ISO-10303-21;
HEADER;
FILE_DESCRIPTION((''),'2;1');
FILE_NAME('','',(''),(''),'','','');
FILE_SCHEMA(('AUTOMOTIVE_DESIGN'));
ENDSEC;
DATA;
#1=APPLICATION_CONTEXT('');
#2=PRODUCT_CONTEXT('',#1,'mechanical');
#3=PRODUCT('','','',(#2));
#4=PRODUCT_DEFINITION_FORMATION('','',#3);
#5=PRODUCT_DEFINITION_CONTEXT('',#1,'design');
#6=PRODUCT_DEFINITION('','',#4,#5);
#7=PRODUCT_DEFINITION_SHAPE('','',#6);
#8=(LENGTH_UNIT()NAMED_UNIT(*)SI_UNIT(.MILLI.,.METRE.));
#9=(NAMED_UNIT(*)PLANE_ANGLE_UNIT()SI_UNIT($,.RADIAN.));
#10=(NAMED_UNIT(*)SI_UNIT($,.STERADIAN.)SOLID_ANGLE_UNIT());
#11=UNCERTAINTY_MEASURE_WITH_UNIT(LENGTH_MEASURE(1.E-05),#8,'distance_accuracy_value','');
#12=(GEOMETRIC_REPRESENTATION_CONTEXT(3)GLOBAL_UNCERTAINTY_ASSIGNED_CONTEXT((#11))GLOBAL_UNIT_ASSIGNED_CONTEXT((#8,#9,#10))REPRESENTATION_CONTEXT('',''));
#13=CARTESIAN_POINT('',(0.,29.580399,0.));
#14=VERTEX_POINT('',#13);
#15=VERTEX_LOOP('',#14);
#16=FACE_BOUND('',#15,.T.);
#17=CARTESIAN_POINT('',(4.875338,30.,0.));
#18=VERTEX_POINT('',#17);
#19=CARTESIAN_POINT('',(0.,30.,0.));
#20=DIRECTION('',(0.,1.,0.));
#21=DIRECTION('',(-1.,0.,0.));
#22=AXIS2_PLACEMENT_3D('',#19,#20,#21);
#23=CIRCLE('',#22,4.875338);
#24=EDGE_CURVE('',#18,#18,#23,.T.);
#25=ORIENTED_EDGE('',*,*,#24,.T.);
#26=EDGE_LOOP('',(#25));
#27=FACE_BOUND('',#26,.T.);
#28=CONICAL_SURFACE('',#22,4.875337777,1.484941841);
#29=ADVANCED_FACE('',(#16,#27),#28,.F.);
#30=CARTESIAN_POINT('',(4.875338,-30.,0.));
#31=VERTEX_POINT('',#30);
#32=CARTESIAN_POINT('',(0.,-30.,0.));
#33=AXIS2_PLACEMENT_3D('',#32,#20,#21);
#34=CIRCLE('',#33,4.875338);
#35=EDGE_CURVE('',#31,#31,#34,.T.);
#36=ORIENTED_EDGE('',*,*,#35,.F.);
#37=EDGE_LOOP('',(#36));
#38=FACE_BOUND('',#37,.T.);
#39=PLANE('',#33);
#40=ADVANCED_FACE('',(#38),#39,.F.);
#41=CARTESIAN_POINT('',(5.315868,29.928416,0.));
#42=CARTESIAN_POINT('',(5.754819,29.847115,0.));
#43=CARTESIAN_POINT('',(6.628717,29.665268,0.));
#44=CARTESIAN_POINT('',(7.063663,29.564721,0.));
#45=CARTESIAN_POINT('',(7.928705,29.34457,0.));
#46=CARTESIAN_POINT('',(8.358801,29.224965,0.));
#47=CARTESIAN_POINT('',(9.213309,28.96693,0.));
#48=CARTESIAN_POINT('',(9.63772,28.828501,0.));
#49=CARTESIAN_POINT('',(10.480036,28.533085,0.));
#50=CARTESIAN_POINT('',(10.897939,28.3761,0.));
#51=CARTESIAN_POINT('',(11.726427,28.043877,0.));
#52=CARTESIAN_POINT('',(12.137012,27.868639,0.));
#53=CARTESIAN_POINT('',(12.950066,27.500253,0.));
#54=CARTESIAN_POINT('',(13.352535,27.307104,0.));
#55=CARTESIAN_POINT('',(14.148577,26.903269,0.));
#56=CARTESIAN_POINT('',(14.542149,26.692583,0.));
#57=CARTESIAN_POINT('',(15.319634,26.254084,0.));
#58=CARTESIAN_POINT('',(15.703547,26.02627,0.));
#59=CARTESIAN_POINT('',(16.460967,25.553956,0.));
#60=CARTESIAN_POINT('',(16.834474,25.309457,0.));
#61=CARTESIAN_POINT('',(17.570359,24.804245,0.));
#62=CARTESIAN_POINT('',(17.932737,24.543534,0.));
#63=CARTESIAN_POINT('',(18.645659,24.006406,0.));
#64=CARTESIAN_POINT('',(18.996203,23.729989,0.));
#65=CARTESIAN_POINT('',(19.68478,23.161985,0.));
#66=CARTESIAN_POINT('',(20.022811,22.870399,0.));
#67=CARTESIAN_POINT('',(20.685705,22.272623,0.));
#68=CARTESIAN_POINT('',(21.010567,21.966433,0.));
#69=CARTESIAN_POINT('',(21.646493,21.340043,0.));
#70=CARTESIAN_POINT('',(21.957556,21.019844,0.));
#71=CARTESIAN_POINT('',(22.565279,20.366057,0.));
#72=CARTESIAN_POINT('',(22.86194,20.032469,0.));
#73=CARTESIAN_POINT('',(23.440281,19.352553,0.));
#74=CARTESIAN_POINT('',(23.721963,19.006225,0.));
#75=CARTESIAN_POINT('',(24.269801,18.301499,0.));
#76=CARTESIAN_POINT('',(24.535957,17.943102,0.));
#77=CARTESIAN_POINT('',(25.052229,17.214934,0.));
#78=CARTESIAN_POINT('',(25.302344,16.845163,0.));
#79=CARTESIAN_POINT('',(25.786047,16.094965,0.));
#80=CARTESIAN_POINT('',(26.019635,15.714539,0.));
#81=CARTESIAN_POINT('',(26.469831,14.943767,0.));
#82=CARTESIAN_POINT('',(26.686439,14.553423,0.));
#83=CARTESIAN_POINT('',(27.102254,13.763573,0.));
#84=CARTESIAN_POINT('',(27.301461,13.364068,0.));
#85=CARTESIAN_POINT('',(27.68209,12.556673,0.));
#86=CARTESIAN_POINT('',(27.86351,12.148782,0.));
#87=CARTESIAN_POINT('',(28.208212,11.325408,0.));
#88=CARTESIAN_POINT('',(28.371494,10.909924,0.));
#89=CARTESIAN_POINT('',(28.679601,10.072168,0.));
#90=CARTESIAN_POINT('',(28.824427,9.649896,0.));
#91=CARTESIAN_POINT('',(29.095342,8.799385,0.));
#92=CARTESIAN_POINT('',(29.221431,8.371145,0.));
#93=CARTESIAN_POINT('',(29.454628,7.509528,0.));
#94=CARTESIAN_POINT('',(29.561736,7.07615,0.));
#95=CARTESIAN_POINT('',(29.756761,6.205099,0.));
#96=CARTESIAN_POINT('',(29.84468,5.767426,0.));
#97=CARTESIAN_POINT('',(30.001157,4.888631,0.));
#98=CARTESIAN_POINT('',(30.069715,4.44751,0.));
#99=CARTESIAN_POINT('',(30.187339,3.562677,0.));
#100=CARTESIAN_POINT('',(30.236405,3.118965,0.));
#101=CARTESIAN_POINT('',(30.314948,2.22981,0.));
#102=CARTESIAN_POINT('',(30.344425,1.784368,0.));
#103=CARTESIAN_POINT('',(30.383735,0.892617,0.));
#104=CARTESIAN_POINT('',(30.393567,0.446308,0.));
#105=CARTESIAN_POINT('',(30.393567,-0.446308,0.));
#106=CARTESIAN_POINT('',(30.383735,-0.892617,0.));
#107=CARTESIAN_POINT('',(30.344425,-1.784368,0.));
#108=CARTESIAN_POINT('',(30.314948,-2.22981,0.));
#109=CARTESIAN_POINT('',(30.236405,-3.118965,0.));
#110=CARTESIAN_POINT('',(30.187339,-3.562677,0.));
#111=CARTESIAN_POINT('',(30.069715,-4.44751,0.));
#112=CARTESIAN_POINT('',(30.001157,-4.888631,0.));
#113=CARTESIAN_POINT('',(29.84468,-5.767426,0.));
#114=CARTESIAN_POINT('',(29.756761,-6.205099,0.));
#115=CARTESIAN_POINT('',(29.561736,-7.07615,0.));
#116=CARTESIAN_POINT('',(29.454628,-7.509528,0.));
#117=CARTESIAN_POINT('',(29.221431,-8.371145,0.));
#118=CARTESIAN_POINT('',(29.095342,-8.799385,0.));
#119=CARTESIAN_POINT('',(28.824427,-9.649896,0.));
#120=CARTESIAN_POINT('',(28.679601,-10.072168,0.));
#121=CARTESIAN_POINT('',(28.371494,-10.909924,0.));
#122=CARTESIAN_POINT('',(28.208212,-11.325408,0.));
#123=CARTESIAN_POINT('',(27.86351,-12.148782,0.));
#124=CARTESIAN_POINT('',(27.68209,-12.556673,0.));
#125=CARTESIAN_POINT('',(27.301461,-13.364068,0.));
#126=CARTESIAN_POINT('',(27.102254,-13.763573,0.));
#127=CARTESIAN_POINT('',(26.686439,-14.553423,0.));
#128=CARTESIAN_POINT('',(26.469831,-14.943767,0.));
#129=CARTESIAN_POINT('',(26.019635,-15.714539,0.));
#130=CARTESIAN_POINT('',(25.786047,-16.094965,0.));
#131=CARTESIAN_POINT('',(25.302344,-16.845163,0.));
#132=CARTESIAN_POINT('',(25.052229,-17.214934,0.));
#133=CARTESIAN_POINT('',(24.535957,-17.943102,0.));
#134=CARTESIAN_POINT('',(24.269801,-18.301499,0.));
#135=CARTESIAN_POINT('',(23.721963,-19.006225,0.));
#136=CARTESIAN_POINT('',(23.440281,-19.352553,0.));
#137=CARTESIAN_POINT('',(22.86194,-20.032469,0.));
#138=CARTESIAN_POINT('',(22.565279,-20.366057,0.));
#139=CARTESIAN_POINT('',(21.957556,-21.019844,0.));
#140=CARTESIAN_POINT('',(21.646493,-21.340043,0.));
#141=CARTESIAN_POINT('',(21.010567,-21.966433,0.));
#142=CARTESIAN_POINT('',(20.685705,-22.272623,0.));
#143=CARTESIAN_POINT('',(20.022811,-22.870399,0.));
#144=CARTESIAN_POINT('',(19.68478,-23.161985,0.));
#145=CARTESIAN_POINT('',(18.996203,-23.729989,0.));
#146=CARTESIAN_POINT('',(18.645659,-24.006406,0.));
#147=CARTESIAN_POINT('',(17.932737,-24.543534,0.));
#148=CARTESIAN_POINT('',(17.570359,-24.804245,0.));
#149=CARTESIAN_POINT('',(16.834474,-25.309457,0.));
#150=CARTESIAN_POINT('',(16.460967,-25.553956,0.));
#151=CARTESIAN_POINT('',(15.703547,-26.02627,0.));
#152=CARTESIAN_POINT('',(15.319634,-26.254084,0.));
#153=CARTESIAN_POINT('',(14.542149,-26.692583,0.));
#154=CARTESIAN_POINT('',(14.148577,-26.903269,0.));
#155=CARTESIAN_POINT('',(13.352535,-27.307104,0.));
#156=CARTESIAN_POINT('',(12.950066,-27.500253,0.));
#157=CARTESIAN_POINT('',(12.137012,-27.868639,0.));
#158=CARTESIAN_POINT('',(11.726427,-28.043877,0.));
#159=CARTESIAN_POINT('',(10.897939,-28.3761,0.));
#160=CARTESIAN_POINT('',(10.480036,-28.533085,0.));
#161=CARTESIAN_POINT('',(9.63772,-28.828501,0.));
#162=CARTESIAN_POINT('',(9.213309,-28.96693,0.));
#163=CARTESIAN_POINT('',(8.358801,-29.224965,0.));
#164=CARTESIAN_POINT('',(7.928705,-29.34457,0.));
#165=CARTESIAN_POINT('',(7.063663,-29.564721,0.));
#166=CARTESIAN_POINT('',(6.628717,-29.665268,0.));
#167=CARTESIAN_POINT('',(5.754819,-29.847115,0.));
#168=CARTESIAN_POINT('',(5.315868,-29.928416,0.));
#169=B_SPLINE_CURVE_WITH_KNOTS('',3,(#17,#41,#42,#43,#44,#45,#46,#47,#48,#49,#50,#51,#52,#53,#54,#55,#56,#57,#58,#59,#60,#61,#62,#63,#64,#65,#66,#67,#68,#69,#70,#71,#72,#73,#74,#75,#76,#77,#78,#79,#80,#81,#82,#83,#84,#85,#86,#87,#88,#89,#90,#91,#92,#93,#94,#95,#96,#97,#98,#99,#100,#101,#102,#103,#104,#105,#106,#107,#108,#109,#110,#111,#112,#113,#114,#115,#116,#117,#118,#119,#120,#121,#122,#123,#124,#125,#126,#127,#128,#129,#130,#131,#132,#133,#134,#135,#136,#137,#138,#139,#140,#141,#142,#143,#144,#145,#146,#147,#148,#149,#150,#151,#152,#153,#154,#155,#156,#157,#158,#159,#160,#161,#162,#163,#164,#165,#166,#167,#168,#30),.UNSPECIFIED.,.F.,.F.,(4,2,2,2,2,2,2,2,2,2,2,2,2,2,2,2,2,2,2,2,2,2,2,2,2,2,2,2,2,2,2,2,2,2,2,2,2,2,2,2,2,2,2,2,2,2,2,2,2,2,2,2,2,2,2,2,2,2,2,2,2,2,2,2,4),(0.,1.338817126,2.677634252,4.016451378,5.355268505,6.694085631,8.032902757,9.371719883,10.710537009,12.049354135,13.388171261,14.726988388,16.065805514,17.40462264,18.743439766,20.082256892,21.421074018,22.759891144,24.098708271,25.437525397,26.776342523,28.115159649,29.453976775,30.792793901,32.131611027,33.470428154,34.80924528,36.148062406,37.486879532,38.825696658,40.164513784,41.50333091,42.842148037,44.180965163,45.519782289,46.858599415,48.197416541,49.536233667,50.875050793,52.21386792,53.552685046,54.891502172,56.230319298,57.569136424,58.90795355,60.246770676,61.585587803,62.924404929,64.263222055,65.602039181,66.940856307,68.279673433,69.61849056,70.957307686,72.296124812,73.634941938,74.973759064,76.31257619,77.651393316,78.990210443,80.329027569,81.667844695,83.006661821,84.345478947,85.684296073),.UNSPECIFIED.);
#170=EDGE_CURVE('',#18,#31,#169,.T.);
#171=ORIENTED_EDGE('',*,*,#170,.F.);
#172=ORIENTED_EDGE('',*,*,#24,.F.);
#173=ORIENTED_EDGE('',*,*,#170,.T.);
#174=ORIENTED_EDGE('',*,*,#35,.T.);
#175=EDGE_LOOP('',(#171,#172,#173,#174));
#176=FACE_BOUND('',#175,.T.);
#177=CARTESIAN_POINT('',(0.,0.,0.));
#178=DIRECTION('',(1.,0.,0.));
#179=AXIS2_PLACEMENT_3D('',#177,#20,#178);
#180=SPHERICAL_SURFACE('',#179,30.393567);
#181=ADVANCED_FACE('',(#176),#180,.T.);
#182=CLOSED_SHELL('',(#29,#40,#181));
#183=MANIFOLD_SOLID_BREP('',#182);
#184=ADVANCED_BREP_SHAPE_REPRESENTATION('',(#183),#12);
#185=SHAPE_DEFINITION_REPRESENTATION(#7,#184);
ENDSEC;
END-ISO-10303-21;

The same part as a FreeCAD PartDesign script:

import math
import FreeCAD as App
import Part
import Sketcher
from FreeCAD import Vector
Q = App.Units.Quantity

doc = App.newDocument("Part")
body = doc.addObject("PartDesign::Body", "Body")

sketch1 = doc.addObject("Sketcher::SketchObject", "Sketch")
body.addObject(sketch1)
sketch1.AttachmentSupport = (doc.XY_Plane, [""])
sketch1.MapMode = "FlatFace"
sketch1.addGeometry(Part.LineSegment(Vector(0, 29.6, 0), Vector(0, -30, 0)), False)
sketch1.addGeometry(Part.LineSegment(Vector(0, -30, 0), Vector(4.9, -30, 0)), False)
sketch1.addGeometry(Part.ArcOfCircle(Part.Circle(Vector(0, 0, 0), Vector(0, 0, 1), 30.4), math.radians(-81), math.radians(81)), False)
sketch1.addGeometry(Part.LineSegment(Vector(4.9, 30, 0), Vector(0, 29.6, 0)), False)
sketch1.addConstraint(Sketcher.Constraint("Coincident", 0, 2, 1, 1))
sketch1.addConstraint(Sketcher.Constraint("Coincident", 1, 2, 2, 1))
sketch1.addConstraint(Sketcher.Constraint("Coincident", 2, 2, 3, 1))
sketch1.addConstraint(Sketcher.Constraint("Coincident", 3, 2, 0, 1))
sketch1.addConstraint(Sketcher.Constraint("Vertical", 0))
sketch1.addConstraint(Sketcher.Constraint("Horizontal", 1))
sketch1.addConstraint(Sketcher.Constraint("Coincident", 2, 3, -1, 1))
sketch1.addConstraint(Sketcher.Constraint("PointOnObject", 0, 2, -2))
sketch1.addConstraint(Sketcher.Constraint("Vertical", 1, 2, 2, 2))
sketch1.addConstraint(Sketcher.Constraint("DistanceY", 0, 2, -1, 1, Q("30 mm")))
sketch1.addConstraint(Sketcher.Constraint("DistanceY", 0, 2, 0, 1, Q("59.580399 mm")))
sketch1.addConstraint(Sketcher.Constraint("Radius", 2, Q("30.393567 mm")))
revolution = doc.addObject("PartDesign::Revolution", "Revolution")
body.addObject(revolution)
revolution.Profile = sketch1
revolution.ReferenceAxis = (sketch1, ["V_Axis"])
revolution.Angle = 360

doc.recompute()
